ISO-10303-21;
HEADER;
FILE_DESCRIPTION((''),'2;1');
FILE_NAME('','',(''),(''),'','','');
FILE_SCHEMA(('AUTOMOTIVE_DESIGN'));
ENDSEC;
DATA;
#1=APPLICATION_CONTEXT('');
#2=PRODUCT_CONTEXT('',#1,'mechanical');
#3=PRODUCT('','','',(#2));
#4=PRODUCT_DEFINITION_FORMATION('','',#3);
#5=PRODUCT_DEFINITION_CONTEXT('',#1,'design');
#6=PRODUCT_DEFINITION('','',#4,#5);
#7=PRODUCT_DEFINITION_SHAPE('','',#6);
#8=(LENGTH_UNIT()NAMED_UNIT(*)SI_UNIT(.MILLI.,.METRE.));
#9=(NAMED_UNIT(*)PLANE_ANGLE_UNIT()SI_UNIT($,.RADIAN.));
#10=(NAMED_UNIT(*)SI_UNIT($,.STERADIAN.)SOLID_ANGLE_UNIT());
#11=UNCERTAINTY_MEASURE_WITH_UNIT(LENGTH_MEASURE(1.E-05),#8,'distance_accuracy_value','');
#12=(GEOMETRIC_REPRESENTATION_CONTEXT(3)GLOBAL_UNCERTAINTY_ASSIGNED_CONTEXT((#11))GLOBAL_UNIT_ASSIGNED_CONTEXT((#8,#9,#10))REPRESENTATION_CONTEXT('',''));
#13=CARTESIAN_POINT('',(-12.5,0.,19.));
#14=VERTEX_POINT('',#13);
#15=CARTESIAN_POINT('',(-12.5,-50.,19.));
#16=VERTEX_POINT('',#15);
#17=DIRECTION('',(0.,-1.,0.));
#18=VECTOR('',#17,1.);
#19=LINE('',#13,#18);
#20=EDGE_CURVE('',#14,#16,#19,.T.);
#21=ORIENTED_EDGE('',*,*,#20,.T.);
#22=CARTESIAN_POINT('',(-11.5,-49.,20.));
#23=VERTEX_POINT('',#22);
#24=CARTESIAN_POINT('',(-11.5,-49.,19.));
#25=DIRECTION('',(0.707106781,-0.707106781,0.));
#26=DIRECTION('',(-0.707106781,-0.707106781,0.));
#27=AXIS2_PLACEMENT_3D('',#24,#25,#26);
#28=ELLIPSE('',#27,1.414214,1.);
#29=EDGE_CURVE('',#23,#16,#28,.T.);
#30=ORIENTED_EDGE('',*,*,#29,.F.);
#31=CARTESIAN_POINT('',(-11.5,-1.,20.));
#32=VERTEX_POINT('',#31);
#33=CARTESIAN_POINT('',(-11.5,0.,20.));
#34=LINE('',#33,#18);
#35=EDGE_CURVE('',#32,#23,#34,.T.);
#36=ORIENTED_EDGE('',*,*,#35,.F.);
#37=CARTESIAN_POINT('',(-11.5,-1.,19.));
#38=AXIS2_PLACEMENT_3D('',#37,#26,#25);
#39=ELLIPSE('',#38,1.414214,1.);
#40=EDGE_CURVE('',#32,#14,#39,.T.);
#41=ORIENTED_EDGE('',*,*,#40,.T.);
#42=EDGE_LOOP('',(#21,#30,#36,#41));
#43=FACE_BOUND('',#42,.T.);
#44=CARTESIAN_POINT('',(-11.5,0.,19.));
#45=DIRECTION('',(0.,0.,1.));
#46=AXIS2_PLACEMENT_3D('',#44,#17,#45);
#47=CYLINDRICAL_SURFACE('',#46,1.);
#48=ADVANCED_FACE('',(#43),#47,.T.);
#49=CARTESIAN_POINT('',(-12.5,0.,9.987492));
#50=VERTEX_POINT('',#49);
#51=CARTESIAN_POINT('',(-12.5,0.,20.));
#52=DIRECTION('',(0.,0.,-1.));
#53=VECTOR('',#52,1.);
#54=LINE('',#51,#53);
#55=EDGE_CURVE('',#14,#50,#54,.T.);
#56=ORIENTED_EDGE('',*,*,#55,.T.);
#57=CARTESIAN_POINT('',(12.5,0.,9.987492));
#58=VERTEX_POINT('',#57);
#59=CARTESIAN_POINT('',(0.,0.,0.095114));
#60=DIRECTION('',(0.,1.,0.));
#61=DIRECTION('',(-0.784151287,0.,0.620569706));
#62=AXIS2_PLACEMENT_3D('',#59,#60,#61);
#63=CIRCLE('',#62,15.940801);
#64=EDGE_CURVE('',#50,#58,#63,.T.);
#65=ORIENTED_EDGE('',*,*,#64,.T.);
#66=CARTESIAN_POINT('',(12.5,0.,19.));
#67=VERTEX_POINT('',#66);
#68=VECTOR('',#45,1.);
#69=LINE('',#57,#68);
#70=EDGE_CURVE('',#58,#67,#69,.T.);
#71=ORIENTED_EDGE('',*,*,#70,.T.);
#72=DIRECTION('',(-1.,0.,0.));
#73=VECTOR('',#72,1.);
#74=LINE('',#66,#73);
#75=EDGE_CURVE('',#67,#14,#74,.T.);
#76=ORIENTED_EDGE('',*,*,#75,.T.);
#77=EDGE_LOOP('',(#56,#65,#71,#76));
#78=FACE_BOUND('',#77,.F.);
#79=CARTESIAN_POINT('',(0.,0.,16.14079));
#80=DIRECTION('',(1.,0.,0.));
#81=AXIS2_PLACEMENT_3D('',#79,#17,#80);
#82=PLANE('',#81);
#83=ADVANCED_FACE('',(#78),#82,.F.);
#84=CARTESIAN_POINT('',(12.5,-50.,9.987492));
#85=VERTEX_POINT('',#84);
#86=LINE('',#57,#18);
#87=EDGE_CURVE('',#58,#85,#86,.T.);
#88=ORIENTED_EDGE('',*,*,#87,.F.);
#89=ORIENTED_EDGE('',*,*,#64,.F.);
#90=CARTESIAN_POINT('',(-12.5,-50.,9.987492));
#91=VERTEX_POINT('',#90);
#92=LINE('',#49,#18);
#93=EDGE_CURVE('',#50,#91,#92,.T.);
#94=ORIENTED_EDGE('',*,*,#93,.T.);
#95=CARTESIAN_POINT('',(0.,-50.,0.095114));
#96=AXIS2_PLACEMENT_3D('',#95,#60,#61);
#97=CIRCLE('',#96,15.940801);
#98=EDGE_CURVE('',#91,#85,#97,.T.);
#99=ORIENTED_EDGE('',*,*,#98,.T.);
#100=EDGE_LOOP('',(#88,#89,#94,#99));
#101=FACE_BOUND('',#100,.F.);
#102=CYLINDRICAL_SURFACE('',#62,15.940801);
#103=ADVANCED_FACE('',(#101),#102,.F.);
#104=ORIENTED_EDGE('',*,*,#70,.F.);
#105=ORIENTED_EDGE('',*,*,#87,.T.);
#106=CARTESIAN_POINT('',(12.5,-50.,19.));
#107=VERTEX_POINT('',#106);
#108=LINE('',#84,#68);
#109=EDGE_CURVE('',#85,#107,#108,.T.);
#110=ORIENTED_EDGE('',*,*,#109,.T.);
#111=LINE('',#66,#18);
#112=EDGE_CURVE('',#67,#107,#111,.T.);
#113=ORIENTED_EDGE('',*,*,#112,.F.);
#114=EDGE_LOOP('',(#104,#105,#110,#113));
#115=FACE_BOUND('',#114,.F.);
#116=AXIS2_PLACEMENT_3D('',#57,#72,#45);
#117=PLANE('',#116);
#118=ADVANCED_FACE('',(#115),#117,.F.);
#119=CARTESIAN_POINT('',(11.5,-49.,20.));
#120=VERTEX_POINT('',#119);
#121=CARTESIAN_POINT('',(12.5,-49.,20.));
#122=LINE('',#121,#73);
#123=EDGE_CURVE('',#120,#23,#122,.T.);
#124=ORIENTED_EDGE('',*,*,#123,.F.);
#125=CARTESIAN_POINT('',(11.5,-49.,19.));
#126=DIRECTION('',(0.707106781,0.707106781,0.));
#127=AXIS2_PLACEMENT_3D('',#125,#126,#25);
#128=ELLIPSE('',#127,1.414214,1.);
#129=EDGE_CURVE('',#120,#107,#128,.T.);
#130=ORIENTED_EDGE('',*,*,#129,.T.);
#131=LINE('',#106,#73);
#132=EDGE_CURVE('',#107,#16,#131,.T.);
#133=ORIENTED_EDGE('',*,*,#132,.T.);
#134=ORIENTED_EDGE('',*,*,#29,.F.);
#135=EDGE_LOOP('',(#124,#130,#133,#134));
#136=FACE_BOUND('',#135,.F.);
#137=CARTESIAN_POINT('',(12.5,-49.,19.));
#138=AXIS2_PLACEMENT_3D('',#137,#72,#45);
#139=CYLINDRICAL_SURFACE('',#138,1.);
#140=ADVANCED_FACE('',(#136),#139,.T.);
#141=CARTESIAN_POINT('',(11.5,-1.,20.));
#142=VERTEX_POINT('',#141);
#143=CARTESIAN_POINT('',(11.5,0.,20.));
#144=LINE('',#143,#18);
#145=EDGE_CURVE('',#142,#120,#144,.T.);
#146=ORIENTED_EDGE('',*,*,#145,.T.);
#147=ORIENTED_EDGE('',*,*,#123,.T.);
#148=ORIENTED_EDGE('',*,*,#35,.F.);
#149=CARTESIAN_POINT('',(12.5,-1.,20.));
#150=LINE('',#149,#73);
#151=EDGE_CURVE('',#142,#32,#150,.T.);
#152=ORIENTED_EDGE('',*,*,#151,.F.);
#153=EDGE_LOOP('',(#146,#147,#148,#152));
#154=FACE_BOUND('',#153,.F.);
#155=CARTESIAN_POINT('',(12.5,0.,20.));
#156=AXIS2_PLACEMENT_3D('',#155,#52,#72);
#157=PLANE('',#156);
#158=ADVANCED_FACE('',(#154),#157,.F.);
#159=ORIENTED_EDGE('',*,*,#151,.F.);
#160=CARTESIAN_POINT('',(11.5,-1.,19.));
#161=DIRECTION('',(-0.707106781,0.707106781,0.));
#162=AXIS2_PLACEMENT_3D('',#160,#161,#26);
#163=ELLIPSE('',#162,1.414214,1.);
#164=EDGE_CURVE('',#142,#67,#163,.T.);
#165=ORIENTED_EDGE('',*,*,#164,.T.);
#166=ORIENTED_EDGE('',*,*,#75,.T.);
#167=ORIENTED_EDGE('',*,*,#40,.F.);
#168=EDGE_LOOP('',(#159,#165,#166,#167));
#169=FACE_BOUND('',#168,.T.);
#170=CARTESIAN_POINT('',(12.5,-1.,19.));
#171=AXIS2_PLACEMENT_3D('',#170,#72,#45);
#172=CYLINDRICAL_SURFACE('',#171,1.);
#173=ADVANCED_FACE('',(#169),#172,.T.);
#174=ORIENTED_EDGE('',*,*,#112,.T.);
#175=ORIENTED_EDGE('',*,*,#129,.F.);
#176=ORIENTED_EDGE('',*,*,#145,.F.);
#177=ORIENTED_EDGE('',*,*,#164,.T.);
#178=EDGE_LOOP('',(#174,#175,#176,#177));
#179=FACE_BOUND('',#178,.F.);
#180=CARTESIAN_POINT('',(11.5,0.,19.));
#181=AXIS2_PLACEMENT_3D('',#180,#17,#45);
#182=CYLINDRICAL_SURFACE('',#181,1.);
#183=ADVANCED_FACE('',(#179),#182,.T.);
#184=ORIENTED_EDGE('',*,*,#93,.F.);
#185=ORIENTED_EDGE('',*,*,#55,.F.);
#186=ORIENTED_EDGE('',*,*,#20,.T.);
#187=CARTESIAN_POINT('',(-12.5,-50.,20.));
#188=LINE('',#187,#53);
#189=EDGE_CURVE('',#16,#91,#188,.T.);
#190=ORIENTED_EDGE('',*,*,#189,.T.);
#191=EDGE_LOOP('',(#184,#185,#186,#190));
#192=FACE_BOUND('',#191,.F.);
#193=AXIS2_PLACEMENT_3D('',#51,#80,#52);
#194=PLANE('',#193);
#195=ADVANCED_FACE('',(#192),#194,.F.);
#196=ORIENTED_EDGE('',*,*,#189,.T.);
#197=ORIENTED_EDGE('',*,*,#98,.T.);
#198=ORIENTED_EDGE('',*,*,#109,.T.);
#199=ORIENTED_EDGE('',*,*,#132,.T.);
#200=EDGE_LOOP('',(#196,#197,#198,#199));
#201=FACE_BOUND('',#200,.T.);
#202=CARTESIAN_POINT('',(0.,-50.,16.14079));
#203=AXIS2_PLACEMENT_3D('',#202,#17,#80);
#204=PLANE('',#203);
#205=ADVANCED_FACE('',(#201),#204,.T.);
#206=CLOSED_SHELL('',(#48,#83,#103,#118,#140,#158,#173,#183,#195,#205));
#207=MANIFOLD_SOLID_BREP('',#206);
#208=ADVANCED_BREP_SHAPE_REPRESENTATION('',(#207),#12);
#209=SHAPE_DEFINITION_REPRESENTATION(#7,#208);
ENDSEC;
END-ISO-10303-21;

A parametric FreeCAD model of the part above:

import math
import FreeCAD as App
import Part
import Sketcher

V = App.Vector
Q = App.Units.Quantity


def edges_at(feature, points):
    """Names of the edges that pass closest to the given points."""
    edges = feature.Shape.Edges
    near = lambda p: min(range(len(edges)), key=lambda i: edges[i].distToShape(Part.Vertex(*p))[0])
    return sorted({f"Edge{near(p) + 1}" for p in points})

doc = App.newDocument("Part")
params = doc.addObject("Spreadsheet::Sheet", "Params")
for row, (alias, value) in enumerate([
    ("sketch1_width", "25 mm"),
    ("pad1_length", "50 mm"),
    ("fillet_radius", "1 mm"),
], start=1):
    params.set(f"A{row}", alias)
    params.set(f"B{row}", "=" + value)
    params.setAlias(f"B{row}", alias)

body = doc.addObject("PartDesign::Body", "Body")

sketch1 = body.newObject("Sketcher::SketchObject", "Sketch")
sketch1.AttachmentSupport = (doc.getObject("XZ_Plane"), [""])
sketch1.MapMode = "FlatFace"
sketch1.addGeometry(Part.LineSegment(V(12, 20, 0), V(-12, 20, 0)), False)
sketch1.addGeometry(Part.LineSegment(V(-12, 20, 0), V(-12, 10, 0)), False)
sketch1.addGeometry(Part.ArcOfCircle(Part.Circle(V(0, 0, 0), V(0, 0, 1), 16), math.radians(38), math.radians(142)), False)
sketch1.addGeometry(Part.LineSegment(V(12, 10, 0), V(12, 20, 0)), False)
sketch1.addConstraint(Sketcher.Constraint("Coincident", 0, 2, 1, 1))
sketch1.addConstraint(Sketcher.Constraint("Coincident", 1, 2, 2, 2))
sketch1.addConstraint(Sketcher.Constraint("Coincident", 2, 1, 3, 1))
sketch1.addConstraint(Sketcher.Constraint("Coincident", 3, 2, 0, 1))
sketch1.addConstraint(Sketcher.Constraint("Horizontal", 0))
sketch1.addConstraint(Sketcher.Constraint("Vertical", 1))
sketch1.addConstraint(Sketcher.Constraint("Vertical", 3))
sketch1.addConstraint(Sketcher.Constraint("Symmetric", 1, 2, 2, 1, -2))
sketch1.addConstraint(Sketcher.Constraint("DistanceX", 0, 2, 0, 1, Q("25 mm")))
sketch1.addConstraint(Sketcher.Constraint("DistanceY", -1, 1, 0, 2, Q("20 mm")))
sketch1.addConstraint(Sketcher.Constraint("Radius", 2, Q("15.940801 mm")))
sketch1.addConstraint(Sketcher.Constraint("DistanceY", 1, 2, 1, 1, Q("10.012508 mm")))
sketch1.setExpression("Constraints[8]", "Params.sketch1_width")
pad1 = body.newObject("PartDesign::Pad", "Pad")
pad1.Profile = sketch1
pad1.setExpression("Length", "Params.pad1_length")
doc.recompute()

fillet = body.newObject("PartDesign::Fillet", "Fillet")
fillet.Base = (pad1, edges_at(pad1, [
    (12.5, -25, 20),
    (0, -50, 20),
    (-12.5, -25, 20),
    (0, 0, 20),
]))
fillet.setExpression("Radius", "Params.fillet_radius")

doc.recompute()
